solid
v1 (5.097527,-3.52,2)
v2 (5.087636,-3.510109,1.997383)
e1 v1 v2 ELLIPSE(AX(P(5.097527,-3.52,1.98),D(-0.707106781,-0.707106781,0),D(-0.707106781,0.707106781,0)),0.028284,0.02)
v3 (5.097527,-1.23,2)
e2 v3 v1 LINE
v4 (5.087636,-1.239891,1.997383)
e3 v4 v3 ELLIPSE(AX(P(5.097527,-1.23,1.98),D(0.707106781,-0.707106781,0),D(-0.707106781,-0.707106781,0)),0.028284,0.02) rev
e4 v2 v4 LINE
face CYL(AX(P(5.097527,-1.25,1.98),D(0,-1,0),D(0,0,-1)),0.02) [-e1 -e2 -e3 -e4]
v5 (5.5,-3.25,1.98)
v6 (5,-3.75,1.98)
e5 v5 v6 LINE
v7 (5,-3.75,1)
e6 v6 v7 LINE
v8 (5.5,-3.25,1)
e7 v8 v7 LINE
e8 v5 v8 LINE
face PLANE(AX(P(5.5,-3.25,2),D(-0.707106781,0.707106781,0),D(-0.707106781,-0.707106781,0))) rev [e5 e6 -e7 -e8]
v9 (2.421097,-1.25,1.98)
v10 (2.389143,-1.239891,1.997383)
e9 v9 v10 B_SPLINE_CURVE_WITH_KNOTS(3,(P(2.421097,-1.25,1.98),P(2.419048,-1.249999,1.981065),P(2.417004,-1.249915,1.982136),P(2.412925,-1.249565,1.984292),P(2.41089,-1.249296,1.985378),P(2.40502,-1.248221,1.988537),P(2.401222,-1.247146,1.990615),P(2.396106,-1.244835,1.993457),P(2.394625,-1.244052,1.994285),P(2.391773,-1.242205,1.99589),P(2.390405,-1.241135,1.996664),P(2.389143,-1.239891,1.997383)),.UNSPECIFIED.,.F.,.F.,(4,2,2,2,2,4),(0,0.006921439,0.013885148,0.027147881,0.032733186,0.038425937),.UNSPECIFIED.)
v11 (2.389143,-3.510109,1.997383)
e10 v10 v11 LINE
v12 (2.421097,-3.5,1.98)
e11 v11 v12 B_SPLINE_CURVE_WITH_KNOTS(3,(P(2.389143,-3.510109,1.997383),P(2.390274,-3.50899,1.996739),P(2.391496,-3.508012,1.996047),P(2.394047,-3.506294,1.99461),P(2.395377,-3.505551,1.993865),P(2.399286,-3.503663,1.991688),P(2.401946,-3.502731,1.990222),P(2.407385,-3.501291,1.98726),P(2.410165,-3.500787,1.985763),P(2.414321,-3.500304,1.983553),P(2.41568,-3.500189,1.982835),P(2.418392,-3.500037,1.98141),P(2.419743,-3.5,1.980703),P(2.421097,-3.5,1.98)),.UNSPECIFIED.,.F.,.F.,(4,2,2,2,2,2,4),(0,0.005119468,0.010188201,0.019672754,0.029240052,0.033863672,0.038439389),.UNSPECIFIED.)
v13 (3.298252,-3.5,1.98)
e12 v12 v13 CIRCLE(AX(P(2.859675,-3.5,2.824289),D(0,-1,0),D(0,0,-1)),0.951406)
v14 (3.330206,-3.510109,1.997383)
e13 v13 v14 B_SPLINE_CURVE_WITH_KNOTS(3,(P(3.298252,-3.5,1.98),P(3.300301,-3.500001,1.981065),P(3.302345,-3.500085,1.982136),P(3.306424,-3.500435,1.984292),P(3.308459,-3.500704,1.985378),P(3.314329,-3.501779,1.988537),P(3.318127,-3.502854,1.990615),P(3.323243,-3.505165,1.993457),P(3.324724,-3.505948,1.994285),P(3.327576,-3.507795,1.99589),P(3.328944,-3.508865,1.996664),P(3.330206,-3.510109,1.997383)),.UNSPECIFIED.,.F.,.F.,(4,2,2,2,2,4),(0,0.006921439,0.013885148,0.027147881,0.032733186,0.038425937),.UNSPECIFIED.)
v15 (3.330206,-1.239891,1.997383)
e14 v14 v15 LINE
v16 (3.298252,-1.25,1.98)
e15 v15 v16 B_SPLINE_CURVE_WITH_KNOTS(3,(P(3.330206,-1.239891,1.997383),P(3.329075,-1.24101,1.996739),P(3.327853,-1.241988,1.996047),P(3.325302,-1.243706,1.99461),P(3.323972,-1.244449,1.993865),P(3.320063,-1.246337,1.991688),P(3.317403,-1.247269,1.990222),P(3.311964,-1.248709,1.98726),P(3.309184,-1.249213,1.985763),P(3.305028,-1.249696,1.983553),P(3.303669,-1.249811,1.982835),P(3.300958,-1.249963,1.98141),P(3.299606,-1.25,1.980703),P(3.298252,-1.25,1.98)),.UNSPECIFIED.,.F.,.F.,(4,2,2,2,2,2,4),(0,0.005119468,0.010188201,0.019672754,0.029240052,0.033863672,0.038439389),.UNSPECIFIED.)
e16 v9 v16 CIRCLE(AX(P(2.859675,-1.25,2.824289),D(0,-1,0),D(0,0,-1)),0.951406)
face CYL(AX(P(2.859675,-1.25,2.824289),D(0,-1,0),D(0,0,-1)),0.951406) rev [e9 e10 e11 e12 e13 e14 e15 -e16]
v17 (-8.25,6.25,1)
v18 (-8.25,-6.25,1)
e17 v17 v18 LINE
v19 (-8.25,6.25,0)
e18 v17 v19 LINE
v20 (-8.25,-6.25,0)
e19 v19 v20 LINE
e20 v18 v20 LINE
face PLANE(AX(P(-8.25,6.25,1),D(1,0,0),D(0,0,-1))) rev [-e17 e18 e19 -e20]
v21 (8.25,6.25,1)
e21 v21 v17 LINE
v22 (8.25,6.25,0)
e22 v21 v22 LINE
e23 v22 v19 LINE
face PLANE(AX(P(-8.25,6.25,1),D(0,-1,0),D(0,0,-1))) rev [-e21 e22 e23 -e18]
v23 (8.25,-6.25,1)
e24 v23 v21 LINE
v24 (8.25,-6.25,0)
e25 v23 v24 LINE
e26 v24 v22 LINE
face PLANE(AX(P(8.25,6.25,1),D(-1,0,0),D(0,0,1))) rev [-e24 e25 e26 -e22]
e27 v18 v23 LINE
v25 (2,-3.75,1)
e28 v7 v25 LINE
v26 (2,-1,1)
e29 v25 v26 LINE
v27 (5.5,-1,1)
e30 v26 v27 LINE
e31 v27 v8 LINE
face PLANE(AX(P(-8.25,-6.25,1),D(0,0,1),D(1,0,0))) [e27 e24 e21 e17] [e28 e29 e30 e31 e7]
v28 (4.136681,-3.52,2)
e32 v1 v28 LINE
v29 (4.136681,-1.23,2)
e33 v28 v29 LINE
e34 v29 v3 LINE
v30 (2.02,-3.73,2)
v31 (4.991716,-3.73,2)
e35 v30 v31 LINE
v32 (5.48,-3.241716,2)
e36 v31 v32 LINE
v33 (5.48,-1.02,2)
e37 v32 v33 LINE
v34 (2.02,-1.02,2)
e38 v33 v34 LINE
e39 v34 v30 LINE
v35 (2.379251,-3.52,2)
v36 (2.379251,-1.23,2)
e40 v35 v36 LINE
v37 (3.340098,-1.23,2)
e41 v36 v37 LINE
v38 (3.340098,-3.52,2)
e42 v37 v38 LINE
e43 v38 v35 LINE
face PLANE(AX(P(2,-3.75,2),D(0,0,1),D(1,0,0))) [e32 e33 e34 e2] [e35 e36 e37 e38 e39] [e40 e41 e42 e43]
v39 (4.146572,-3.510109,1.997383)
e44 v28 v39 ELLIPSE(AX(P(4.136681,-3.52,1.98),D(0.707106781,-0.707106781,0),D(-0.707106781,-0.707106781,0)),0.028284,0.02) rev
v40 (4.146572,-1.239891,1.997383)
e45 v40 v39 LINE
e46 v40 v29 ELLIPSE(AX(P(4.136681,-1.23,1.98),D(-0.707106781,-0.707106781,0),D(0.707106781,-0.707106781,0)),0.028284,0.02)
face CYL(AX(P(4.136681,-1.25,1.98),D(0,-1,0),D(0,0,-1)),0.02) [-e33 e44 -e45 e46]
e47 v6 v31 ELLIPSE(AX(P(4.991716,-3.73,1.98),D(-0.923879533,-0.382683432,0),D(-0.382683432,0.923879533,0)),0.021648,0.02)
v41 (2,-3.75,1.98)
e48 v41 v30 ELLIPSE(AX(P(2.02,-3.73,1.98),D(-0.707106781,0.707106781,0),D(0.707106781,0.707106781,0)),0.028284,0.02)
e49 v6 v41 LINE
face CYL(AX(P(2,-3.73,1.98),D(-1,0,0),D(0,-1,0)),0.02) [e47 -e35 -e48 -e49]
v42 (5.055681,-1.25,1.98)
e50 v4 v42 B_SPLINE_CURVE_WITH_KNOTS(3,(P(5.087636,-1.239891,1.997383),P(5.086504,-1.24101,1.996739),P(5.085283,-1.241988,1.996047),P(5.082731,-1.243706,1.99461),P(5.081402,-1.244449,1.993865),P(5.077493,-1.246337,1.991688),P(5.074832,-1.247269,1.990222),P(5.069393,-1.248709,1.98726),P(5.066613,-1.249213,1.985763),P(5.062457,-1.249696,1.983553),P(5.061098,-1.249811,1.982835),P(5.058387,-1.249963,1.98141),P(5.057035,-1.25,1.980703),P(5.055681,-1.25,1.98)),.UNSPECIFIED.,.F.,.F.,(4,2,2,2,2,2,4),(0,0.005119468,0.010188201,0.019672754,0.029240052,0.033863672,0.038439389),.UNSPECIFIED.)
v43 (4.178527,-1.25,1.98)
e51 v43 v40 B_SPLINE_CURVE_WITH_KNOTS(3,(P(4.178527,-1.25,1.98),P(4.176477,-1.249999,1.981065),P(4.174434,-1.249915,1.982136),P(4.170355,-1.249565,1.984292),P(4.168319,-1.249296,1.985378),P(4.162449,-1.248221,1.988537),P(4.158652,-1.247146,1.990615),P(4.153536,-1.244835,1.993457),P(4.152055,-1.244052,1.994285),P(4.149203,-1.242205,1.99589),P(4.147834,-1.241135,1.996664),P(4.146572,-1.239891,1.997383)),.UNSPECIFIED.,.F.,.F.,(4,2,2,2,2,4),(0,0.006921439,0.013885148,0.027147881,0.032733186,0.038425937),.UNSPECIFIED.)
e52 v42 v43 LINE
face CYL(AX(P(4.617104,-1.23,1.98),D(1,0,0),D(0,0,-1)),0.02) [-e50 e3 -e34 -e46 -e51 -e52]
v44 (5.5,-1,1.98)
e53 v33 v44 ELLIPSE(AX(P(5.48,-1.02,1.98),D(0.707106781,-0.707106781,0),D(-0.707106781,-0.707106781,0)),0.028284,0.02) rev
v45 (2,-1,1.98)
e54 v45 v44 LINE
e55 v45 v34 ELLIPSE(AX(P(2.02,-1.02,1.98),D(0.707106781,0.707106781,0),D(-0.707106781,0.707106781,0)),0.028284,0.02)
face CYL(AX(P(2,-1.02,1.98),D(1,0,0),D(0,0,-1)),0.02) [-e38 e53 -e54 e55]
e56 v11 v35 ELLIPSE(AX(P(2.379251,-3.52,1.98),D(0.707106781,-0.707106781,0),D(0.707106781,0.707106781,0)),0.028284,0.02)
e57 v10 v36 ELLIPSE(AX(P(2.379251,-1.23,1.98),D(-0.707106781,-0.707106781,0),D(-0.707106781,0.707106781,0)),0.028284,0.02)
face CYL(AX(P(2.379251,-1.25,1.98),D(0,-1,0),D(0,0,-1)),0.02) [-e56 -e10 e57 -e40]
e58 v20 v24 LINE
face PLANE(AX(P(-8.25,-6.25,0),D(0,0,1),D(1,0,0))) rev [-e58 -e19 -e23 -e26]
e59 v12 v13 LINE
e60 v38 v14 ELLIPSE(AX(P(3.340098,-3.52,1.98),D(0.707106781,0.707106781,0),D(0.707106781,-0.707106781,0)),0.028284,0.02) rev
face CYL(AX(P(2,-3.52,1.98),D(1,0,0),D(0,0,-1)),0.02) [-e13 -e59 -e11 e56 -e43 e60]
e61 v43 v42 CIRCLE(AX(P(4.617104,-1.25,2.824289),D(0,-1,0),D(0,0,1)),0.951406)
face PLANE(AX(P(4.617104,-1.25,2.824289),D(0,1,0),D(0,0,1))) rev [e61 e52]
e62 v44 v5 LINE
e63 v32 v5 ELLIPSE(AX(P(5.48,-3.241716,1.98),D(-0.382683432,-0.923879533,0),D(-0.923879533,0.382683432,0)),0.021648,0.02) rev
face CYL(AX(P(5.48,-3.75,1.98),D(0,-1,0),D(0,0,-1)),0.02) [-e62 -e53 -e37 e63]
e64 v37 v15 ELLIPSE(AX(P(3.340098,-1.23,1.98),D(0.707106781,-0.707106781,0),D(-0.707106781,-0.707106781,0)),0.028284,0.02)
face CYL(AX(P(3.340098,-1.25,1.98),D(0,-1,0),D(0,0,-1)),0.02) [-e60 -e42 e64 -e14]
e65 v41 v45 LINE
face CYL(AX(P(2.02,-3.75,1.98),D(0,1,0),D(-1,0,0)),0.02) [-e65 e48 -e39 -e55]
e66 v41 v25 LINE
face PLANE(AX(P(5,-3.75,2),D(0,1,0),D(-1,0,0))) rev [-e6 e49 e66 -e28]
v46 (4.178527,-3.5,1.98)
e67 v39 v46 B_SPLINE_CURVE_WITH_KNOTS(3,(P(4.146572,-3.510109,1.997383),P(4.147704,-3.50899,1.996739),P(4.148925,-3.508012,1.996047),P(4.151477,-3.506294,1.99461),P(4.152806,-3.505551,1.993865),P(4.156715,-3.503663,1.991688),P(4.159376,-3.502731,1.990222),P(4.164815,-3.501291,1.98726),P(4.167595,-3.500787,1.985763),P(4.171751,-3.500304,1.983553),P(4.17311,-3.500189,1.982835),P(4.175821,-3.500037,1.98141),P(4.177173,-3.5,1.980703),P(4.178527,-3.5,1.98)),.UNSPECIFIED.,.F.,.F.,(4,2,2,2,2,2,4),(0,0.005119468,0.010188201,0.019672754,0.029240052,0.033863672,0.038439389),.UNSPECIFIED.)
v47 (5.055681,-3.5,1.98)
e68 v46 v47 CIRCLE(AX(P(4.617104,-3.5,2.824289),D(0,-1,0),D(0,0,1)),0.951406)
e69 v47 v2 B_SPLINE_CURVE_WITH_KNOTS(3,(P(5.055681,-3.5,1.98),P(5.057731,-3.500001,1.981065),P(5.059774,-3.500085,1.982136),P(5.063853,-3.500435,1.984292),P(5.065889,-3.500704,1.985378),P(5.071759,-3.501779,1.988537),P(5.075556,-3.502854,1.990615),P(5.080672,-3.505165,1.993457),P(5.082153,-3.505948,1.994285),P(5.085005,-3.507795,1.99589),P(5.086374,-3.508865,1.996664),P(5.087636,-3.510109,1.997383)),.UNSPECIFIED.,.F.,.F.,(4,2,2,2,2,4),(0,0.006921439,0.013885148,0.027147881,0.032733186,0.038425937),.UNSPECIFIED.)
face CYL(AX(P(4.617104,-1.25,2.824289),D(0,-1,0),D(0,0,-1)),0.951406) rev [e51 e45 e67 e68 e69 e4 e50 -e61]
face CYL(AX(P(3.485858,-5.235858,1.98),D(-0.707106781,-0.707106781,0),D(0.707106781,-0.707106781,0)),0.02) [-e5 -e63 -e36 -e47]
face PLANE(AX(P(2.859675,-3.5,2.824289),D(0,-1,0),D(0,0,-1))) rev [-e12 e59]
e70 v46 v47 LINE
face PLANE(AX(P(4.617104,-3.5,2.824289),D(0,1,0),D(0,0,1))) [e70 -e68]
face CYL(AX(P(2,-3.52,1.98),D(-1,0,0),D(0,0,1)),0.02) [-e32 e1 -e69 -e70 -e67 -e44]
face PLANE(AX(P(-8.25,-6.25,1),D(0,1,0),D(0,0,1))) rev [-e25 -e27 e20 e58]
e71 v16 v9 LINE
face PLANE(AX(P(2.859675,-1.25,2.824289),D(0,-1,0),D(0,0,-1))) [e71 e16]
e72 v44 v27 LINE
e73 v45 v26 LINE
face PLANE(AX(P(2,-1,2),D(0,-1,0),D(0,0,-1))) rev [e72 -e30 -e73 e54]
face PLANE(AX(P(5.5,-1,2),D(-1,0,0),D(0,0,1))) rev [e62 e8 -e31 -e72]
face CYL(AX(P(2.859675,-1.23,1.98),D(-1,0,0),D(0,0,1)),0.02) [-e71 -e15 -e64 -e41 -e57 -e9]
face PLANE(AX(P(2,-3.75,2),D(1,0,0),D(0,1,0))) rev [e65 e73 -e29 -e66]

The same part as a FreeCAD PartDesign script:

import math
import FreeCAD as App
import Part
import Sketcher
Q = App.Units.Quantity


def edges_at(feature, points):
    """Names of the edges that pass closest to the given points."""
    edges = feature.Shape.Edges
    near = lambda p: min(range(len(edges)), key=lambda i: edges[i].distToShape(Part.Vertex(*p))[0])
    return sorted({f"Edge{near(p) + 1}" for p in points})


def add_polygon(sketch, points):
    """Adds a closed chain of lines whose ends are joined by coincident constraints."""
    first, n = sketch.GeometryCount, len(points)
    for a, b in zip(points, points[1:] + points[:1]):
        sketch.addGeometry(Part.LineSegment(App.Vector(*a, 0), App.Vector(*b, 0)), False)
    for i in range(n):
        sketch.addConstraint(Sketcher.Constraint("Coincident", first + i, 2, first + (i + 1) % n, 1))

doc = App.newDocument("Part")
body = doc.addObject("PartDesign::Body", "Body")

# Sketch on XY plane
sketch1 = doc.addObject("Sketcher::SketchObject", "Sketch")
body.addObject(sketch1)
sketch1.AttachmentSupport = (doc.XY_Plane, [""])
sketch1.MapMode = "FlatFace"
add_polygon(sketch1, [(-8, 6), (-8, -6), (8, -6), (8, 6)])  # lines 0-3
sketch1.addConstraint([
    Sketcher.Constraint("Vertical", 0),
    Sketcher.Constraint("Horizontal", 1),
    Sketcher.Constraint("Vertical", 2),
    Sketcher.Constraint("Horizontal", 3),
    Sketcher.Constraint("Symmetric", 0, 2, 2, 2, -1, 1),
    Sketcher.Constraint("DistanceX", 1, 1, 1, 2, Q("16.5 mm")),
    Sketcher.Constraint("DistanceY", 0, 2, 0, 1, Q("12.5 mm")),
])
pad1 = doc.addObject("PartDesign::Pad", "Pad")
body.addObject(pad1)
pad1.Profile = sketch1
pad1.Length = 1

# Sketch on XY plane
sketch2 = doc.addObject("Sketcher::SketchObject", "Sketch001")
body.addObject(sketch2)
sketch2.AttachmentSupport = (doc.XY_Plane, [""])
sketch2.MapMode = "FlatFace"
add_polygon(sketch2, [(5.5, -1), (2, -1), (2, -3.8), (5, -3.8), (5.5, -3.2)])  # lines 0-4
sketch2.addConstraint([
    Sketcher.Constraint("Horizontal", 0),
    Sketcher.Constraint("Vertical", 1),
    Sketcher.Constraint("Horizontal", 2),
    Sketcher.Constraint("Vertical", 4),
    Sketcher.Constraint("DistanceX", 2, 1, 2, 2, Q("3 mm")),
    Sketcher.Constraint("Angle", 3, Q("45 deg")),
    Sketcher.Constraint("DistanceX", 0, 2, 0, 1, Q("3.5 mm")),
    Sketcher.Constraint("DistanceX", -1, 1, 0, 2, Q("2 mm")),
    Sketcher.Constraint("DistanceY", 0, 2, -1, 1, Q("1 mm")),
    Sketcher.Constraint("DistanceY", 1, 2, 1, 1, Q("2.75 mm")),
])
pad2 = doc.addObject("PartDesign::Pad", "Pad001")
body.addObject(pad2)
pad2.Profile = sketch2
pad2.Length = 2

# Sketch on XZ plane
sketch3 = doc.addObject("Sketcher::SketchObject", "Sketch002")
body.addObject(sketch3)
sketch3.AttachmentSupport = (doc.XZ_Plane, [""])
sketch3.MapMode = "FlatFace"
sketch3.AttachmentOffset = App.Placement(App.Vector(0, 0, 3.5), App.Rotation())
sketch3.addGeometry([
    Part.LineSegment(App.Vector(3.3, 2, 0), App.Vector(2.4, 2, 0)),
    Part.ArcOfCircle(Part.Circle(App.Vector(2.9, 2.8, 0), App.Vector(0, 0, 1), 1), math.radians(-120), math.radians(-60)),
    Part.LineSegment(App.Vector(5.1, 2, 0), App.Vector(4.1, 2, 0)),
    Part.ArcOfCircle(Part.Circle(App.Vector(4.6, 2.8, 0), App.Vector(0, 0, 1), 1), math.radians(-120), math.radians(-60)),
], False)
sketch3.addConstraint([
    Sketcher.Constraint("Coincident", 0, 1, 1, 2),
    Sketcher.Constraint("Coincident", 1, 1, 0, 2),
    Sketcher.Constraint("Coincident", 2, 1, 3, 2),
    Sketcher.Constraint("Coincident", 3, 1, 2, 2),
    Sketcher.Constraint("Horizontal", 0),
    Sketcher.Constraint("Horizontal", 2),
    Sketcher.Constraint("Equal", 1, 3),
    Sketcher.Constraint("Horizontal", 1, 3, 3, 3),
    Sketcher.Constraint("Horizontal", 1, 1, 2, 1),
    Sketcher.Constraint("DistanceY", -1, 1, 0, 1, Q("2 mm")),
    Sketcher.Constraint("Radius", 1, Q("0.951406 mm")),
    Sketcher.Constraint("DistanceX", 1, 3, 0, 1, Q("0.475102 mm")),
    Sketcher.Constraint("DistanceX", 1, 3, 3, 3, Q("1.757429 mm")),
    Sketcher.Constraint("DistanceX", -1, 1, 1, 3, Q("2.859675 mm")),
])
pocket1 = doc.addObject("PartDesign::Pocket", "Pocket")
body.addObject(pocket1)
pocket1.Profile = sketch3
pocket1.Length = 2.25
doc.recompute()

fillet = doc.addObject("PartDesign::Fillet", "Fillet")
body.addObject(fillet)
fillet.Base = (pocket1, edges_at(pocket1, [
    (3.75, -1, 2),
    (5.5, -2.125, 2),
    (5.25, -3.5, 2),
    (3.5, -3.75, 2),
    (2, -2.375, 2),
    (4.617, -3.5, 2),
    (4.142, -2.375, 2),
    (4.617, -1.25, 2),
    (5.092, -2.375, 2),
    (2.385, -2.375, 2),
    (2.86, -1.25, 2),
    (3.335, -2.375, 2),
    (2.86, -3.5, 2),
]))
fillet.Radius = 0.02

doc.recompute()
